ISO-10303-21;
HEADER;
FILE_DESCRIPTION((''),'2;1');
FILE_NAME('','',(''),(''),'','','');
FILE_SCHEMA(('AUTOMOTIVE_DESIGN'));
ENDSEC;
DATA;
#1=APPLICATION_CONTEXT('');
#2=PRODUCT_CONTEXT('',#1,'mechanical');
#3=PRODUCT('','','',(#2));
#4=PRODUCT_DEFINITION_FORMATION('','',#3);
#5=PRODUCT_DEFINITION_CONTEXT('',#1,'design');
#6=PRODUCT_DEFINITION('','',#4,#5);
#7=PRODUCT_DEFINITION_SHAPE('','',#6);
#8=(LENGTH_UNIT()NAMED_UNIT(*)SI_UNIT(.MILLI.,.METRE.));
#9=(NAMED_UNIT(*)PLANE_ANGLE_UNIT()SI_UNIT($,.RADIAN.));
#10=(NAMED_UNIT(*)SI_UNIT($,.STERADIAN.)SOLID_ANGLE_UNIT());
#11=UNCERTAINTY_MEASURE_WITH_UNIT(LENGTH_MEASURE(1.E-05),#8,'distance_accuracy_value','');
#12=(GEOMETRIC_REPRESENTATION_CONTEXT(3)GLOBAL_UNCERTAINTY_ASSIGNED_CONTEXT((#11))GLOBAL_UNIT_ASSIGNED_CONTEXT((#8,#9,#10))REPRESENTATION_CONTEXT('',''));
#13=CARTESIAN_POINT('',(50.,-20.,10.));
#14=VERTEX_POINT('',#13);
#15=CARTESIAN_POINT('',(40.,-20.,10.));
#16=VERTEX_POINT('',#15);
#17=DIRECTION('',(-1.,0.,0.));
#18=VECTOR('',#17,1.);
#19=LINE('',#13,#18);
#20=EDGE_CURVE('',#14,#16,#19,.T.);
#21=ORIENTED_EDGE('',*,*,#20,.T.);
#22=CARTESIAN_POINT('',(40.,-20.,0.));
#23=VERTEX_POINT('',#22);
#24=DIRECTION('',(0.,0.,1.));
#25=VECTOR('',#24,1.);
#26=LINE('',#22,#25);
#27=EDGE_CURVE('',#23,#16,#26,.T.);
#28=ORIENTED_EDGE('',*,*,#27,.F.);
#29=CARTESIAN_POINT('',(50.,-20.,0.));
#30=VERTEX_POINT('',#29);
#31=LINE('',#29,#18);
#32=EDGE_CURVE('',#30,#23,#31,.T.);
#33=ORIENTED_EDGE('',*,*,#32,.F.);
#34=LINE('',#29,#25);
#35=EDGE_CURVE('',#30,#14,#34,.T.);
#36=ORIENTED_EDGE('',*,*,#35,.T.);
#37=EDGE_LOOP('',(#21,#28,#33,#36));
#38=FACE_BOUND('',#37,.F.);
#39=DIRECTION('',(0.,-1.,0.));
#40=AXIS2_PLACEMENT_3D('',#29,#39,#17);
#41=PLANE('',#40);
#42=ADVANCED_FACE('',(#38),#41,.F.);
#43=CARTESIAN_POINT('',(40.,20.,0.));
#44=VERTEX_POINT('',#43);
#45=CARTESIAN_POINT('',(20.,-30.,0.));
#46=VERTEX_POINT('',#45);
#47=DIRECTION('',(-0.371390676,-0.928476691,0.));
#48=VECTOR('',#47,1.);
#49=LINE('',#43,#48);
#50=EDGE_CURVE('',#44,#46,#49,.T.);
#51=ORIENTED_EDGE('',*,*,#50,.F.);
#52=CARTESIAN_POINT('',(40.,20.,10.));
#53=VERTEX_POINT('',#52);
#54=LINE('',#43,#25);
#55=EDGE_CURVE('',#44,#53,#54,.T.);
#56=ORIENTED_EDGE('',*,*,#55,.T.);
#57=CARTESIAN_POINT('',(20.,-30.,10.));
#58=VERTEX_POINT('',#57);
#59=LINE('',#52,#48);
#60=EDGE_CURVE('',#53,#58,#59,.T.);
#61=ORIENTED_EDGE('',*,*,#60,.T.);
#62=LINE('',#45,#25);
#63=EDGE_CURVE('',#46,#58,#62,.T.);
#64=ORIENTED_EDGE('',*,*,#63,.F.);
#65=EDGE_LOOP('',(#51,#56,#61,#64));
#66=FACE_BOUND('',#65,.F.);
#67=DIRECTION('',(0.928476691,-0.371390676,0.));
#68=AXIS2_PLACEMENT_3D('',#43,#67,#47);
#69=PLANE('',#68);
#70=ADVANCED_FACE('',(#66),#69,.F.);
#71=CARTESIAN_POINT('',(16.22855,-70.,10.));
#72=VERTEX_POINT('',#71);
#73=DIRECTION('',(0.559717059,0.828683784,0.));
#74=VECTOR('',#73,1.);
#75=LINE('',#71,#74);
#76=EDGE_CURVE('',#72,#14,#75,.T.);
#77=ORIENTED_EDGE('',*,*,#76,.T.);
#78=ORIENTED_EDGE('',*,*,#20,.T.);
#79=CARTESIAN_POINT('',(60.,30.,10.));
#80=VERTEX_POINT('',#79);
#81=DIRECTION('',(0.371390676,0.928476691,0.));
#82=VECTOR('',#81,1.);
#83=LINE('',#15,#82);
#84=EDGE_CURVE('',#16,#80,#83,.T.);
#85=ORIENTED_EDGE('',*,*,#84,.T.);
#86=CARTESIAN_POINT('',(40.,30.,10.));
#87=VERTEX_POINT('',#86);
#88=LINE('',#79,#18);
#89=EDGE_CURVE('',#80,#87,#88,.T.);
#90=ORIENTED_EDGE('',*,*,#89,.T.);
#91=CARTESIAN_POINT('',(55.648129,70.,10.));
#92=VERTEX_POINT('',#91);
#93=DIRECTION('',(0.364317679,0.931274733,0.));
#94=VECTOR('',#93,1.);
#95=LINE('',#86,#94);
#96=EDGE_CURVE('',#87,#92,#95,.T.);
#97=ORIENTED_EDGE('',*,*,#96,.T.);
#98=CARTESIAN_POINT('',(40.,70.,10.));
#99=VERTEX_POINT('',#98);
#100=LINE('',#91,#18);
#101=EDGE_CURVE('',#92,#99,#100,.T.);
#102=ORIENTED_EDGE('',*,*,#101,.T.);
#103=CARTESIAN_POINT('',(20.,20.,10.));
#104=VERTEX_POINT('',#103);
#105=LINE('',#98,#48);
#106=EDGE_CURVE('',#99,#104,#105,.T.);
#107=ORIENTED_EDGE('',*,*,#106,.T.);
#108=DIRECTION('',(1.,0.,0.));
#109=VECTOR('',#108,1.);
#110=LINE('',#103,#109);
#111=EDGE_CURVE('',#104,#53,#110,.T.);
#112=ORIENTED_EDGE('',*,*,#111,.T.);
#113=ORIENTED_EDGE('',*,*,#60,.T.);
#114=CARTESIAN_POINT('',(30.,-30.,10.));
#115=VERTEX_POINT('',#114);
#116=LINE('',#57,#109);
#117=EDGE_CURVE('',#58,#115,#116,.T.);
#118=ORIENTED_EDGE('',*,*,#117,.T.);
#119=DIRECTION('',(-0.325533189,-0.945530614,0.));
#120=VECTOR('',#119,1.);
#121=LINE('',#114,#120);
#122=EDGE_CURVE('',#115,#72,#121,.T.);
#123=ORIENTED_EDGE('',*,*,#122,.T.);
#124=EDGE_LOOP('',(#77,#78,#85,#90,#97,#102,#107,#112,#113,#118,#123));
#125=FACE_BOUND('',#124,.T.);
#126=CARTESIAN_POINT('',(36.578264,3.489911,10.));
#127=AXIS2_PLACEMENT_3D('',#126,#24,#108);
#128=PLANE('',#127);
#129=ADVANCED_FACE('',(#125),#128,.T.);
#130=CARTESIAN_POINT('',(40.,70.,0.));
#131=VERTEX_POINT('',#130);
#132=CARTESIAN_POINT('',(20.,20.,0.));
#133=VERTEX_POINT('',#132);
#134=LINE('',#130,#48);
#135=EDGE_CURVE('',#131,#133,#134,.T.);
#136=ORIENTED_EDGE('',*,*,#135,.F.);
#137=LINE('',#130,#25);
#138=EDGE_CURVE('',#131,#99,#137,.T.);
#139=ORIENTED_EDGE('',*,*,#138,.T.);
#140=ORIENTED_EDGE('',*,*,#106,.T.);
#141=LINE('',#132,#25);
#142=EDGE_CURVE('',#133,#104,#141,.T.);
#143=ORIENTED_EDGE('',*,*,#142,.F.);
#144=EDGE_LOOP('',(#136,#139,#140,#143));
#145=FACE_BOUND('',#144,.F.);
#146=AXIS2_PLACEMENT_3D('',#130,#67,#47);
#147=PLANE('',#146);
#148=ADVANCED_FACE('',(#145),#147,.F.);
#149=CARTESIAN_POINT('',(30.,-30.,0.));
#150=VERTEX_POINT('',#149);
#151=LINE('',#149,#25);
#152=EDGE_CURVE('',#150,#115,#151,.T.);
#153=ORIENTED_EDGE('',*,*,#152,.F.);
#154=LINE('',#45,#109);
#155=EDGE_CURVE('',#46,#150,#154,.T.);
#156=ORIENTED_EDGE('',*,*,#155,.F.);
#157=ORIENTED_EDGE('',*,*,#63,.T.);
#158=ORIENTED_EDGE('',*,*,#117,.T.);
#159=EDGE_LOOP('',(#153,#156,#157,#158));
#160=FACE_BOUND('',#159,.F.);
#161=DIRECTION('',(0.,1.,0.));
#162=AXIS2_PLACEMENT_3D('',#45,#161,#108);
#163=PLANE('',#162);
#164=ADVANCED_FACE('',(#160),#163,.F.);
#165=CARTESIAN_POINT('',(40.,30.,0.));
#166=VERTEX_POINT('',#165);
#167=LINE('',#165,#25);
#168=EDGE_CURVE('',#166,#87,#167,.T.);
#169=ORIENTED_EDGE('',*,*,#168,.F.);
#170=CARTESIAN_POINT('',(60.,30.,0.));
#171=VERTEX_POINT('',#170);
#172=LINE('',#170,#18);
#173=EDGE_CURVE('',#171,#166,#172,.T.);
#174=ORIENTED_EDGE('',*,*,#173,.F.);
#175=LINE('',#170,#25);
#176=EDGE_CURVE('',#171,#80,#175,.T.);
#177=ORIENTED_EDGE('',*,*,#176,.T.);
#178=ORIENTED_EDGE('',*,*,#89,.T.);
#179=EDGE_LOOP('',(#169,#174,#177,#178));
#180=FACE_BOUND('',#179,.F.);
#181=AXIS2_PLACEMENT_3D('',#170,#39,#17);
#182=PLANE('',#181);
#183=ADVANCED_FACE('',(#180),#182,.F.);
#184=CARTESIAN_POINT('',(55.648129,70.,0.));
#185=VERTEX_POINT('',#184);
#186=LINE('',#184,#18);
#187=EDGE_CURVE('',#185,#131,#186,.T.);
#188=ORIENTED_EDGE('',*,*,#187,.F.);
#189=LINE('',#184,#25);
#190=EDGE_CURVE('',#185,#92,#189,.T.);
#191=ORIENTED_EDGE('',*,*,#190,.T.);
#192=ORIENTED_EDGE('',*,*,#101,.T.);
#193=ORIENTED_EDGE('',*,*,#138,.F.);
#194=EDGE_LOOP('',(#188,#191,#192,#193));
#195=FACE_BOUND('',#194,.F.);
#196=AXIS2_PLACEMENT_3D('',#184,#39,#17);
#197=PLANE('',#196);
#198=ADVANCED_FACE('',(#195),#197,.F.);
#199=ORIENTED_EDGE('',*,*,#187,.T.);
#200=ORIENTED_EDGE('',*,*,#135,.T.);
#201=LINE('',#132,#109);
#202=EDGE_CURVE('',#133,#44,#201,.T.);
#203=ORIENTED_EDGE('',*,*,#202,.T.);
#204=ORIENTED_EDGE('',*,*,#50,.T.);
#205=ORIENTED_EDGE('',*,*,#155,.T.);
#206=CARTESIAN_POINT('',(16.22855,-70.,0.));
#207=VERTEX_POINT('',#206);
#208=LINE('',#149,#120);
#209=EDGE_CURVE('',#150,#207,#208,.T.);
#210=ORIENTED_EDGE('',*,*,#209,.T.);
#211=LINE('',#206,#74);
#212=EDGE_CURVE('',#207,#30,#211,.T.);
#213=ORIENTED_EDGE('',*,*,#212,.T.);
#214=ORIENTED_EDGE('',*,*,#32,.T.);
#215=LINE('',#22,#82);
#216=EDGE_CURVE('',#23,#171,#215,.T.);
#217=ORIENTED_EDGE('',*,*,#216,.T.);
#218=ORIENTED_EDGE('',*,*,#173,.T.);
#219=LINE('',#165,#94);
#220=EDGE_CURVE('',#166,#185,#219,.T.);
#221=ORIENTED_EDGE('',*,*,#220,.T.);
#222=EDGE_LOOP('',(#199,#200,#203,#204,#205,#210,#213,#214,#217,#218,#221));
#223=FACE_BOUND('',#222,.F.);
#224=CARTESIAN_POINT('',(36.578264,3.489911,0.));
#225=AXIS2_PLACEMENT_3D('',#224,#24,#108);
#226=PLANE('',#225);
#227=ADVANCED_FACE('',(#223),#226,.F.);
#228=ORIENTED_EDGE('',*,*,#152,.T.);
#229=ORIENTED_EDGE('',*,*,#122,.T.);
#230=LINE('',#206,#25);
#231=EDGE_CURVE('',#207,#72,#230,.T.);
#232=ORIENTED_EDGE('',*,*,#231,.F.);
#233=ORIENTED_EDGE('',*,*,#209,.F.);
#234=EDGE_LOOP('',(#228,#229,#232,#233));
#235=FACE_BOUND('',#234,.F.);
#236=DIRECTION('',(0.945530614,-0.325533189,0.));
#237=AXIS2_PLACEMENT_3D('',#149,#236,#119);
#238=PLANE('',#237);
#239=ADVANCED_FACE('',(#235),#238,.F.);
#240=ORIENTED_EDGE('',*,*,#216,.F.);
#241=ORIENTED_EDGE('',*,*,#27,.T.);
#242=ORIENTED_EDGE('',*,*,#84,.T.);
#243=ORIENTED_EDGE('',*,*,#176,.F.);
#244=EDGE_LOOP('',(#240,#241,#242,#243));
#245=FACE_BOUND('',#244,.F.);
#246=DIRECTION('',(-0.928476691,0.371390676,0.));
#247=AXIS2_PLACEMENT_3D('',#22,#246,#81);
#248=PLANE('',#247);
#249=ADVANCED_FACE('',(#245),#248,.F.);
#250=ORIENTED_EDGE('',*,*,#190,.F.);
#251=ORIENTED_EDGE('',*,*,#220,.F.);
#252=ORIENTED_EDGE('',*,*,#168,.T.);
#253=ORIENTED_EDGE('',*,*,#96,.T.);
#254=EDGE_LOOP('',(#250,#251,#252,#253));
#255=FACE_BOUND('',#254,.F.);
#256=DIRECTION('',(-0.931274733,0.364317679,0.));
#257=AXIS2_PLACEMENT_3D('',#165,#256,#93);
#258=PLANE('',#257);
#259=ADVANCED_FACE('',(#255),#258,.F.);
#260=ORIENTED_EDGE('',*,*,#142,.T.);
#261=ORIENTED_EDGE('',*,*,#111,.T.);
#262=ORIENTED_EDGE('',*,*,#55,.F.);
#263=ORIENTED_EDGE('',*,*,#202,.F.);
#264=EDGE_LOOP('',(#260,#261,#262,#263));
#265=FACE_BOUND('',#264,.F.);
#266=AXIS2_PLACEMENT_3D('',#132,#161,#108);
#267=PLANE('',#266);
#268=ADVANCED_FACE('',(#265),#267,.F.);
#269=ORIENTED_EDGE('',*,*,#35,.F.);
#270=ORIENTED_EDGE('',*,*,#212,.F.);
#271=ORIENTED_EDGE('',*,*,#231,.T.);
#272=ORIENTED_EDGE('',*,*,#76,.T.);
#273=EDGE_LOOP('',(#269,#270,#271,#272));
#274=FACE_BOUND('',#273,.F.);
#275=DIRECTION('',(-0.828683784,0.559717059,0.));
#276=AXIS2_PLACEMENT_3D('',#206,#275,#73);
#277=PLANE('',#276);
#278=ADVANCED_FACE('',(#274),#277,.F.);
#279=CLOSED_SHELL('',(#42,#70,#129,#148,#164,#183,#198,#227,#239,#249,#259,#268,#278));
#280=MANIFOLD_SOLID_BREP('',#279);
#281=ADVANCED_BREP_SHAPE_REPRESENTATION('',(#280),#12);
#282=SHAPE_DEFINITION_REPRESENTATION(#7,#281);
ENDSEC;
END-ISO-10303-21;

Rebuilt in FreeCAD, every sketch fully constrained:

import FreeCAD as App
import Part
import Sketcher

V = App.Vector
Q = App.Units.Quantity

doc = App.newDocument("Part")
body = doc.addObject("PartDesign::Body", "Body")

# Sketch on XY plane
sketch1 = body.newObject("Sketcher::SketchObject", "Sketch")
sketch1.AttachmentSupport = (doc.getObject("XY_Plane"), [""])
sketch1.MapMode = "FlatFace"
sketch1.addGeometry(Part.LineSegment(V(40, 70, 0), V(20, 20, 0)), False)
sketch1.addGeometry(Part.LineSegment(V(20, 20, 0), V(40, 20, 0)), False)
sketch1.addGeometry(Part.LineSegment(V(40, 20, 0), V(20, -30, 0)), False)
sketch1.addGeometry(Part.LineSegment(V(20, -30, 0), V(30, -30, 0)), False)
sketch1.addGeometry(Part.LineSegment(V(30, -30, 0), V(16, -70, 0)), False)
sketch1.addGeometry(Part.LineSegment(V(16, -70, 0), V(50, -20, 0)), False)
sketch1.addGeometry(Part.LineSegment(V(50, -20, 0), V(40, -20, 0)), False)
sketch1.addGeometry(Part.LineSegment(V(40, -20, 0), V(60, 30, 0)), False)
sketch1.addGeometry(Part.LineSegment(V(60, 30, 0), V(40, 30, 0)), False)
sketch1.addGeometry(Part.LineSegment(V(40, 30, 0), V(56, 70, 0)), False)
sketch1.addGeometry(Part.LineSegment(V(56, 70, 0), V(40, 70, 0)), False)
sketch1.addConstraint(Sketcher.Constraint("Coincident", 0, 2, 1, 1))
sketch1.addConstraint(Sketcher.Constraint("Coincident", 1, 2, 2, 1))
sketch1.addConstraint(Sketcher.Constraint("Coincident", 2, 2, 3, 1))
sketch1.addConstraint(Sketcher.Constraint("Coincident", 3, 2, 4, 1))
sketch1.addConstraint(Sketcher.Constraint("Coincident", 4, 2, 5, 1))
sketch1.addConstraint(Sketcher.Constraint("Coincident", 5, 2, 6, 1))
sketch1.addConstraint(Sketcher.Constraint("Coincident", 6, 2, 7, 1))
sketch1.addConstraint(Sketcher.Constraint("Coincident", 7, 2, 8, 1))
sketch1.addConstraint(Sketcher.Constraint("Coincident", 8, 2, 9, 1))
sketch1.addConstraint(Sketcher.Constraint("Coincident", 9, 2, 10, 1))
sketch1.addConstraint(Sketcher.Constraint("Coincident", 10, 2, 0, 1))
sketch1.addConstraint(Sketcher.Constraint("Horizontal", 1))
sketch1.addConstraint(Sketcher.Constraint("Horizontal", 3))
sketch1.addConstraint(Sketcher.Constraint("Horizontal", 6))
sketch1.addConstraint(Sketcher.Constraint("Horizontal", 8))
sketch1.addConstraint(Sketcher.Constraint("Horizontal", 10))
sketch1.addConstraint(Sketcher.Constraint("Symmetric", 1, 2, 6, 2, -1))
sketch1.addConstraint(Sketcher.Constraint("Parallel", 0, 2))
sketch1.addConstraint(Sketcher.Constraint("Parallel", 2, 7))
sketch1.addConstraint(Sketcher.Constraint("Vertical", 0, 2, 2, 2))
sketch1.addConstraint(Sketcher.Constraint("Vertical", 6, 2, 8, 2))
sketch1.addConstraint(Sketcher.Constraint("Vertical", 8, 2, 10, 2))
sketch1.addConstraint(Sketcher.Constraint("Equal", 3, 6))
sketch1.addConstraint(Sketcher.Constraint("Equal", 1, 8))
sketch1.addConstraint(Sketcher.Constraint("DistanceX", 1, 1, 1, 2, Q("20 mm")))
sketch1.addConstraint(Sketcher.Constraint("DistanceX", 3, 1, 3, 2, Q("10 mm")))
sketch1.addConstraint(Sketcher.Constraint("DistanceX", -1, 1, 0, 2, Q("20 mm")))
sketch1.addConstraint(Sketcher.Constraint("DistanceY", -1, 1, 0, 2, Q("20 mm")))
sketch1.addConstraint(Sketcher.Constraint("DistanceY", 2, 2, -1, 1, Q("30 mm")))
sketch1.addConstraint(Sketcher.Constraint("DistanceY", 4, 2, -1, 1, Q("70 mm")))
sketch1.addConstraint(Sketcher.Constraint("DistanceX", 10, 2, 10, 1, Q("15.648129 mm")))
sketch1.addConstraint(Sketcher.Constraint("Distance", 4, Q("42.304289 mm")))
pad1 = body.newObject("PartDesign::Pad", "Pad")
pad1.Profile = sketch1
pad1.Length = 10

doc.recompute()
